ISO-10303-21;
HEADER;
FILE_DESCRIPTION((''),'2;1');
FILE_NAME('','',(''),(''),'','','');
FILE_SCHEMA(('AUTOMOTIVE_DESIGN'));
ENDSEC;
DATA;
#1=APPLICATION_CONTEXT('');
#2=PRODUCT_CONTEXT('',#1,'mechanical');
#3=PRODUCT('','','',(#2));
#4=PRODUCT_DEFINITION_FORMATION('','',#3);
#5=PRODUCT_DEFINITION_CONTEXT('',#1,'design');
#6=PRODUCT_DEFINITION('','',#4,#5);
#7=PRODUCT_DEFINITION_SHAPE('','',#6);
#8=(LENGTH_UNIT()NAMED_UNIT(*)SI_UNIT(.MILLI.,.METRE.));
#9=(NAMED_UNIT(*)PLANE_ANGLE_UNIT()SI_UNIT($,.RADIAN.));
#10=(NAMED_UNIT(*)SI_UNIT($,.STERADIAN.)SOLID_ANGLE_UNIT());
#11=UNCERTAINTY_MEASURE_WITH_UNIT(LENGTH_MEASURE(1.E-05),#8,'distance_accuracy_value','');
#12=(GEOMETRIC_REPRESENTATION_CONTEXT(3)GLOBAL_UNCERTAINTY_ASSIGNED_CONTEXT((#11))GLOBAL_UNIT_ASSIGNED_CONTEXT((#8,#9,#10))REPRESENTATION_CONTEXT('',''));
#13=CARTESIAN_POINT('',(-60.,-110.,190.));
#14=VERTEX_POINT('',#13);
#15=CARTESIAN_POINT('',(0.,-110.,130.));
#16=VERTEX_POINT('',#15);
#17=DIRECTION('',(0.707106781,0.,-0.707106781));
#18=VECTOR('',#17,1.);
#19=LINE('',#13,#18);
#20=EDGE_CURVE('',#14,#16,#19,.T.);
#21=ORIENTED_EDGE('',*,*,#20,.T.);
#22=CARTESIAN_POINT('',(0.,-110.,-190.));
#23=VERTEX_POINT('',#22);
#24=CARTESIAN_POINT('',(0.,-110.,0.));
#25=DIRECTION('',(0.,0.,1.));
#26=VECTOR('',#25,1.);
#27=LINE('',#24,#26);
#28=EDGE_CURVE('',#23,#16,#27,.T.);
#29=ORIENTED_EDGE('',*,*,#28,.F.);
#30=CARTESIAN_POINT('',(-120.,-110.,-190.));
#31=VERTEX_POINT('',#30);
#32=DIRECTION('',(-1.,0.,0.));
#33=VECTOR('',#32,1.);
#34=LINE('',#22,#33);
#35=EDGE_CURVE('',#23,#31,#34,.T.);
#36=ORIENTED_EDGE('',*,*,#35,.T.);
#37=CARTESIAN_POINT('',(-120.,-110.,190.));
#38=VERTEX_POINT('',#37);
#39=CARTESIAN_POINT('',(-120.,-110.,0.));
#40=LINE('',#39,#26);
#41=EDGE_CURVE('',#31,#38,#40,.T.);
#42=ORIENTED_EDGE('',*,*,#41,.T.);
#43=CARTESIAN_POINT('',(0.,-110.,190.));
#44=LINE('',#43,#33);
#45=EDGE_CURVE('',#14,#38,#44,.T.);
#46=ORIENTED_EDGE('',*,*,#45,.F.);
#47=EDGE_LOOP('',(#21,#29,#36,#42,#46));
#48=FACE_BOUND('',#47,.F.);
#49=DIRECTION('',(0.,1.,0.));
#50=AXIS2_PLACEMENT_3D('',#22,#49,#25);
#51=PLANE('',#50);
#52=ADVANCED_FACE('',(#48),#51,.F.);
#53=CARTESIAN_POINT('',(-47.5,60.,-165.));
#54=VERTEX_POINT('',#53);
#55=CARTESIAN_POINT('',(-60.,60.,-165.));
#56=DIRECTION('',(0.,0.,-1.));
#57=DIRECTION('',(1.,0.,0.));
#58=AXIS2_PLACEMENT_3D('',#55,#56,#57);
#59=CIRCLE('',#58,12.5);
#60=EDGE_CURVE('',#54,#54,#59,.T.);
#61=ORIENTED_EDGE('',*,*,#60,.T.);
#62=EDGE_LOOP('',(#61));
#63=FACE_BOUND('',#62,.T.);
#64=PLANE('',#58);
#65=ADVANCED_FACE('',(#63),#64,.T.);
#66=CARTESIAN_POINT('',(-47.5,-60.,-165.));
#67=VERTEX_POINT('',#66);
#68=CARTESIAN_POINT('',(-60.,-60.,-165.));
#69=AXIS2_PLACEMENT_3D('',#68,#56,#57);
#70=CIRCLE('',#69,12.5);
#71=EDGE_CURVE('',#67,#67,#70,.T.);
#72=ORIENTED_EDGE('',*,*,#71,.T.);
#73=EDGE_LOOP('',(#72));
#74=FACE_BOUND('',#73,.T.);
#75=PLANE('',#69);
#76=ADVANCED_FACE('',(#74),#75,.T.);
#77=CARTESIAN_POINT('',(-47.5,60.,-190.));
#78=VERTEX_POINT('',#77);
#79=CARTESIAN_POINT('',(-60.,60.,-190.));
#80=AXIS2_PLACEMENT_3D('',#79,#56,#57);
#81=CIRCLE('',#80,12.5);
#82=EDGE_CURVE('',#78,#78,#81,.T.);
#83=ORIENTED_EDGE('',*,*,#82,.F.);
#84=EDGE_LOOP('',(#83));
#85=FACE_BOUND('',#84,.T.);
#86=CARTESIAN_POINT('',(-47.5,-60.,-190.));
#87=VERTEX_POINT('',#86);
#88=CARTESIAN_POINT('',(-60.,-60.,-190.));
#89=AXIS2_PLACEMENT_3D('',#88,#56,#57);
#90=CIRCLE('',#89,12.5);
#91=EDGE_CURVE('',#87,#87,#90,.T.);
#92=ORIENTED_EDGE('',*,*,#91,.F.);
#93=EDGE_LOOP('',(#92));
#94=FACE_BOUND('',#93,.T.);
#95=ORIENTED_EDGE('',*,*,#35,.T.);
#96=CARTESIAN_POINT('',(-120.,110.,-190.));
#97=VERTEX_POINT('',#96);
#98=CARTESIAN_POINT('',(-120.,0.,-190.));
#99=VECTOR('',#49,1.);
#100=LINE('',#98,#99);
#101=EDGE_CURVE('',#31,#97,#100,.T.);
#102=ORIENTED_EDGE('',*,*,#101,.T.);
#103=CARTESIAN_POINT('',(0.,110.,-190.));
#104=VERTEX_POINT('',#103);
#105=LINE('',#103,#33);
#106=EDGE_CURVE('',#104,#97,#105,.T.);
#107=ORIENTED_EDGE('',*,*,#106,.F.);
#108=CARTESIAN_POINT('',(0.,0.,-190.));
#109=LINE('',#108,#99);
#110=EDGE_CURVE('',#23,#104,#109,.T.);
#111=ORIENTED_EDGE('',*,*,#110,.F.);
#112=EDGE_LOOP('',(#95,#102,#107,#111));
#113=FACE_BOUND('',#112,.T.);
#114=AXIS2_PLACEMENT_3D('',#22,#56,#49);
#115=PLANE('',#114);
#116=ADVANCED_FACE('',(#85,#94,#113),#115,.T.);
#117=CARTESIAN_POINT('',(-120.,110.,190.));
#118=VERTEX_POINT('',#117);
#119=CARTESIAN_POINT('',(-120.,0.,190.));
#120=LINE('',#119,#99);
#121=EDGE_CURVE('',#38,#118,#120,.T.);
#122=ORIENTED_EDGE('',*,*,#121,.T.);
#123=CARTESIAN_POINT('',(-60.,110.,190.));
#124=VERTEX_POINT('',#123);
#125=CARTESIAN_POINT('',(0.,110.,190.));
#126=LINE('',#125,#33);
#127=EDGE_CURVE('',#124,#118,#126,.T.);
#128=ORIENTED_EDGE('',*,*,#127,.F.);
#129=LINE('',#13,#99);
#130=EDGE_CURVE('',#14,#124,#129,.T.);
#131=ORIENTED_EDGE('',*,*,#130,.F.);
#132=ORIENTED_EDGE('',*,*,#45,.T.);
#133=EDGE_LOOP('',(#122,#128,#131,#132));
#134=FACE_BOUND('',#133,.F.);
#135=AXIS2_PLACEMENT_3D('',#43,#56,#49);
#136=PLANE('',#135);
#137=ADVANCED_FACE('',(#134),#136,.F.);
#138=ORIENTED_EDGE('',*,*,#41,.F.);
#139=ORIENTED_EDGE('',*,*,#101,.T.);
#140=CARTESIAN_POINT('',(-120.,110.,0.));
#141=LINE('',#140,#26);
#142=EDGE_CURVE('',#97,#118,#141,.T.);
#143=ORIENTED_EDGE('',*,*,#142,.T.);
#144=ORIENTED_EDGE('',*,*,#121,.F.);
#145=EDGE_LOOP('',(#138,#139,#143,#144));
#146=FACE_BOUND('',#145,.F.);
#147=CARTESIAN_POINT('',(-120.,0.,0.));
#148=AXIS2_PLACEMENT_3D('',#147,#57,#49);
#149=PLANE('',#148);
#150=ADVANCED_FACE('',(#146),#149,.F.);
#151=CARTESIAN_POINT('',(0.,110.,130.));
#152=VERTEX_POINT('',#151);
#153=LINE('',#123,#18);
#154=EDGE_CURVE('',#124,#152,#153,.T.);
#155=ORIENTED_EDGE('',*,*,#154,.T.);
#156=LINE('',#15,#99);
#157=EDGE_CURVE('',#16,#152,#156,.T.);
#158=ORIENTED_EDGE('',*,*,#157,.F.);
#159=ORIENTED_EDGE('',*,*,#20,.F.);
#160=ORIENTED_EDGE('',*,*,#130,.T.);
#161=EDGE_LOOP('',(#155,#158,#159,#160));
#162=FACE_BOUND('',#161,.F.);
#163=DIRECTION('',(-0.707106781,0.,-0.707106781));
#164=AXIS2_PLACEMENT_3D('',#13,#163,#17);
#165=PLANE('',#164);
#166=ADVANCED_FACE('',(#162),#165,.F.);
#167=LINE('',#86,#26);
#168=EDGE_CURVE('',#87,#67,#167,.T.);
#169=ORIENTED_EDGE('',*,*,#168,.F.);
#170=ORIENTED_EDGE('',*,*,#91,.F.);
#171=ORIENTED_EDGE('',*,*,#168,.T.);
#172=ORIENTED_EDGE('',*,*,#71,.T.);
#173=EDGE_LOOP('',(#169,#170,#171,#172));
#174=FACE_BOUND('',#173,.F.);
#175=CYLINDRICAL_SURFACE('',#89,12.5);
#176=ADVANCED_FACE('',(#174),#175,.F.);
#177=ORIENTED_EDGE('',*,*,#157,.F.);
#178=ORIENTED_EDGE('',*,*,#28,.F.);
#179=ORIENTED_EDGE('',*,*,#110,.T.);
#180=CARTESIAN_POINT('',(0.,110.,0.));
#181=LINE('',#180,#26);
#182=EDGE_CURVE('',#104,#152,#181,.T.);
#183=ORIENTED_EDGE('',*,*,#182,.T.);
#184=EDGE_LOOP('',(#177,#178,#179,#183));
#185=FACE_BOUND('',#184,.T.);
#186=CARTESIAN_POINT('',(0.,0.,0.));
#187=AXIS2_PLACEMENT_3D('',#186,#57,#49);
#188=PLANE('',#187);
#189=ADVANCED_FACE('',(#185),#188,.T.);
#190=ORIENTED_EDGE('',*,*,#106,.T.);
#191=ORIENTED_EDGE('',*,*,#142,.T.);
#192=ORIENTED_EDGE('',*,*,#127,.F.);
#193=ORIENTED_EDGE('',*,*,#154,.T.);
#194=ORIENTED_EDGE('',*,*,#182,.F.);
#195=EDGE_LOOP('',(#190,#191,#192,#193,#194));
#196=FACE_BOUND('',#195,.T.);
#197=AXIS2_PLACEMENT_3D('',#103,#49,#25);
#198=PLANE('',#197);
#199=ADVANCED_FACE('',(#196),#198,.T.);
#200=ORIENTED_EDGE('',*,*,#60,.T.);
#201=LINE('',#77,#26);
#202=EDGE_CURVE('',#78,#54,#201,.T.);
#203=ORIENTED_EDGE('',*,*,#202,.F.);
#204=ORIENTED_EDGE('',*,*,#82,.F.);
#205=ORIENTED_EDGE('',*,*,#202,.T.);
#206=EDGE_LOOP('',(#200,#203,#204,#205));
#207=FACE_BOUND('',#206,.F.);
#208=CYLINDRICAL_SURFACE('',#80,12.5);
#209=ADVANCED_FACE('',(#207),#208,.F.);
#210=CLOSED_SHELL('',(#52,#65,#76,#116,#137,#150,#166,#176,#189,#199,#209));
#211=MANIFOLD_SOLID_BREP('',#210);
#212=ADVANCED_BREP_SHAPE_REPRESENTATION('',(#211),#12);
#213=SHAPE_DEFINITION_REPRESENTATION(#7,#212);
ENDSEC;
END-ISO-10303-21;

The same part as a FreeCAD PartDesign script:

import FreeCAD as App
import Part
import Sketcher
from FreeCAD import Vector


def add_polygon(sketch, points):
    """Adds a closed chain of lines whose ends are joined by coincident constraints."""
    first, n = sketch.GeometryCount, len(points)
    for a, b in zip(points, points[1:] + points[:1]):
        sketch.addGeometry(Part.LineSegment(App.Vector(*a, 0), App.Vector(*b, 0)), False)
    for i in range(n):
        sketch.addConstraint(Sketcher.Constraint("Coincident", first + i, 2, first + (i + 1) % n, 1))

doc = App.newDocument("Part")
body = doc.addObject("PartDesign::Body", "Body")

# Sketch on YZ plane
sketch1 = body.newObject("Sketcher::SketchObject", "Sketch")
sketch1.AttachmentSupport = (doc.getObject("YZ_Plane"), [""])
sketch1.MapMode = "FlatFace"
add_polygon(sketch1, [(-110, 190), (-110, -190), (110, -190), (110, 190)])  # lines 0-3
sketch1.addConstraint(Sketcher.Constraint("Vertical", 0))
sketch1.addConstraint(Sketcher.Constraint("Horizontal", 1))
sketch1.addConstraint(Sketcher.Constraint("Vertical", 2))
sketch1.addConstraint(Sketcher.Constraint("Horizontal", 3))
sketch1.addConstraint(Sketcher.Constraint("Symmetric", 0, 2, 2, 2, -1, 1))
sketch1.addConstraint(Sketcher.Constraint("DistanceX", 1, 1, 1, 2, 220.0))
sketch1.addConstraint(Sketcher.Constraint("DistanceY", 0, 2, 0, 1, 380.0))
pad1 = body.newObject("PartDesign::Pad", "Pad")
pad1.Profile = sketch1
pad1.Length = 120
pad1.Reversed = True

# Sketch on XZ plane
sketch2 = body.newObject("Sketcher::SketchObject", "Sketch001")
sketch2.AttachmentSupport = (doc.getObject("XZ_Plane"), [""])
sketch2.MapMode = "FlatFace"
sketch2.AttachmentOffset = App.Placement(Vector(0, 0, 110), App.Rotation())
add_polygon(sketch2, [(0, 190), (-60, 190), (0, 130)])  # lines 0-2
sketch2.addConstraint(Sketcher.Constraint("Horizontal", 0))
sketch2.addConstraint(Sketcher.Constraint("Vertical", 2))
sketch2.addConstraint(Sketcher.Constraint("PointOnObject", 1, 2, -2))
sketch2.addConstraint(Sketcher.Constraint("Equal", 0, 2))
sketch2.addConstraint(Sketcher.Constraint("DistanceX", 0, 2, 0, 1, 60.0))
sketch2.addConstraint(Sketcher.Constraint("DistanceY", -1, 1, 0, 2, 190.0))
pocket1 = body.newObject("PartDesign::Pocket", "Pocket")
pocket1.Profile = sketch2
pocket1.Length = 220

# Sketch on XY plane
sketch3 = body.newObject("Sketcher::SketchObject", "Sketch002")
sketch3.AttachmentSupport = (doc.getObject("XY_Plane"), [""])
sketch3.MapMode = "FlatFace"
sketch3.AttachmentOffset = App.Placement(Vector(0, 0, -190), App.Rotation())
sketch3.addGeometry(Part.Circle(Vector(-60, -60, 0), Vector(0, 0, 1), 12.5), False)
sketch3.addGeometry(Part.Circle(Vector(-60, 60, 0), Vector(0, 0, 1), 12.5), False)
sketch3.addConstraint(Sketcher.Constraint("Equal", 0, 1))
sketch3.addConstraint(Sketcher.Constraint("Symmetric", 0, 3, 1, 3, -1))
sketch3.addConstraint(Sketcher.Constraint("Diameter", 0, 25.0))
sketch3.addConstraint(Sketcher.Constraint("DistanceX", 0, 3, -1, 1, 60.0))
sketch3.addConstraint(Sketcher.Constraint("DistanceY", 0, 3, -1, 1, 60.0))
pocket2 = body.newObject("PartDesign::Pocket", "Pocket001")
pocket2.Profile = sketch3
pocket2.Length = 25
pocket2.Reversed = True

doc.recompute()
